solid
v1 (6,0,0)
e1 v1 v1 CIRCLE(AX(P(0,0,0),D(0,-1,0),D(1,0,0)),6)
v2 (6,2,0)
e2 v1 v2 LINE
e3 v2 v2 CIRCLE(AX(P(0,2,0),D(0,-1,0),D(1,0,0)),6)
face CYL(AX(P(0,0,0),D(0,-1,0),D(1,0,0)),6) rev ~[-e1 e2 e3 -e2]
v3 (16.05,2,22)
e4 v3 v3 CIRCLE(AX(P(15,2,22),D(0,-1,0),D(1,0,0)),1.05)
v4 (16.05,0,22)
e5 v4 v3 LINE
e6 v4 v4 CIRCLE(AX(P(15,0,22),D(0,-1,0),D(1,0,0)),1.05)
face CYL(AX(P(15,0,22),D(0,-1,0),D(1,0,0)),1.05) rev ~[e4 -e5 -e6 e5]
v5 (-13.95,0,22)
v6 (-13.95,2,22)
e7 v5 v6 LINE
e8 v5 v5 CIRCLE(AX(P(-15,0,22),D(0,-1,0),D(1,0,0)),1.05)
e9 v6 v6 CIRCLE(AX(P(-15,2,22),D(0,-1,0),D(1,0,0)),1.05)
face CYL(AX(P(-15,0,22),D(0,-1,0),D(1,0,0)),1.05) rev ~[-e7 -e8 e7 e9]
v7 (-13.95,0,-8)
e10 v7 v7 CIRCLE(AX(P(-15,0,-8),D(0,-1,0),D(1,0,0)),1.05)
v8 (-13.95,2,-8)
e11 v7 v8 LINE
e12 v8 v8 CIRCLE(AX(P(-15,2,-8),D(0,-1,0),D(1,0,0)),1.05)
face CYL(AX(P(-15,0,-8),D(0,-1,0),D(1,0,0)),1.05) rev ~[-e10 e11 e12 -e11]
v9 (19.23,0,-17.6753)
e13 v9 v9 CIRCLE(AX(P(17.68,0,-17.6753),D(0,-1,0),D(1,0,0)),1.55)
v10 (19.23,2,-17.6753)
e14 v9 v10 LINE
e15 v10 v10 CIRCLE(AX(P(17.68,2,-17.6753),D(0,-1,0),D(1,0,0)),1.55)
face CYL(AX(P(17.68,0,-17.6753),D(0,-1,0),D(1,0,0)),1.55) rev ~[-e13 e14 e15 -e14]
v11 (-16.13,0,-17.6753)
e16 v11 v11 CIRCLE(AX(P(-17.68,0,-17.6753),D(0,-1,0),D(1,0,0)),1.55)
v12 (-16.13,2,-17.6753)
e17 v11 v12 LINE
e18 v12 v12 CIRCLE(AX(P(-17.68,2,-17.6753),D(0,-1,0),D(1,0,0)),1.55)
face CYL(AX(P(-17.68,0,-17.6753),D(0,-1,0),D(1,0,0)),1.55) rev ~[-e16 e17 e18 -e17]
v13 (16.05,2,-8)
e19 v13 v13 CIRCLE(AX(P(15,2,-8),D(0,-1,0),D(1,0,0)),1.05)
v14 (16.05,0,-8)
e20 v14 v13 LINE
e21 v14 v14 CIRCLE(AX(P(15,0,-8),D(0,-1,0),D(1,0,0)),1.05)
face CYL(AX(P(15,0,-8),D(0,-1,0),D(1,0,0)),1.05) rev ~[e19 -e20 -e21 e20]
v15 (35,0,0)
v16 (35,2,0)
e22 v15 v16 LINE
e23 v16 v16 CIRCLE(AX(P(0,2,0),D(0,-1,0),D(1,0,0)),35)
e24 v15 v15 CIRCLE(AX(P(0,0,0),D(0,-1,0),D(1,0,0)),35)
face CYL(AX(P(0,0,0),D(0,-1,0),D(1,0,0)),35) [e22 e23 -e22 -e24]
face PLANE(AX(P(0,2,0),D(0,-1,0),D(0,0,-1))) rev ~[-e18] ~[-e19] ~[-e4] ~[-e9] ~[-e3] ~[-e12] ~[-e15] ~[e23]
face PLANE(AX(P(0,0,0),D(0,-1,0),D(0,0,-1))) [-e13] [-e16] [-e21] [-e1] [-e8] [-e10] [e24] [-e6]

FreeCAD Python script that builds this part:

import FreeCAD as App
import Part
import Sketcher
from FreeCAD import Vector
Q = App.Units.Quantity

doc = App.newDocument("Part")
params = doc.addObject("Spreadsheet::Sheet", "Params")
for row, (alias, value) in enumerate([
    ("sketch1_diameter", "70 mm"),
    ("sketch1_diameter2", "12 mm"),
    ("pad1_length", "2 mm"),
    ("sketch2_diameter", "2.1 mm"),
    ("pocket1_length", "224.2374 mm"),
    ("sketch3_diameter", "3.1 mm"),
    ("pocket2_length", "156.4567 mm"),
], start=1):
    params.set(f"A{row}", alias)
    params.set(f"B{row}", "=" + value)
    params.setAlias(f"B{row}", alias)

body = doc.addObject("PartDesign::Body", "Body")

# Sketch on XZ plane
sketch1 = body.newObject("Sketcher::SketchObject", "Sketch")
sketch1.AttachmentSupport = (doc.getObject("XZ_Plane"), [""])
sketch1.MapMode = "FlatFace"
sketch1.addGeometry(Part.Circle(Vector(0, 0, 0), Vector(0, 0, 1), 35), False)
sketch1.addGeometry(Part.Circle(Vector(0, 0, 0), Vector(0, 0, 1), 6), False)
sketch1.addConstraint(Sketcher.Constraint("Coincident", 0, 3, -1, 1))
sketch1.addConstraint(Sketcher.Constraint("Coincident", 1, 3, -1, 1))
sketch1.addConstraint(Sketcher.Constraint("Diameter", 0, Q("70 mm")))
sketch1.addConstraint(Sketcher.Constraint("Diameter", 1, Q("12 mm")))
sketch1.setExpression("Constraints[2]", "Params.sketch1_diameter")
sketch1.setExpression("Constraints[3]", "Params.sketch1_diameter2")
pad1 = body.newObject("PartDesign::Pad", "Pad")
pad1.Profile = sketch1
pad1.setExpression("Length", "Params.pad1_length")
pad1.Reversed = True

# Sketch on XZ plane
sketch2 = body.newObject("Sketcher::SketchObject", "Sketch001")
sketch2.AttachmentSupport = (doc.getObject("XZ_Plane"), [""])
sketch2.MapMode = "FlatFace"
sketch2.addGeometry(Part.Circle(Vector(-15, 22, 0), Vector(0, 0, 1), 1.1), False)
sketch2.addGeometry(Part.Circle(Vector(-15, -8, 0), Vector(0, 0, 1), 1.1), False)
sketch2.addGeometry(Part.Circle(Vector(15, 22, 0), Vector(0, 0, 1), 1.1), False)
sketch2.addGeometry(Part.Circle(Vector(15, -8, 0), Vector(0, 0, 1), 1.1), False)
sketch2.addConstraint(Sketcher.Constraint("Equal", 0, 1))
sketch2.addConstraint(Sketcher.Constraint("Equal", 1, 2))
sketch2.addConstraint(Sketcher.Constraint("Equal", 2, 3))
sketch2.addConstraint(Sketcher.Constraint("Symmetric", 0, 3, 2, 3, -2))
sketch2.addConstraint(Sketcher.Constraint("Symmetric", 1, 3, 3, 3, -2))
sketch2.addConstraint(Sketcher.Constraint("Vertical", 0, 3, 1, 3))
sketch2.addConstraint(Sketcher.Constraint("Diameter", 0, Q("2.1 mm")))
sketch2.addConstraint(Sketcher.Constraint("DistanceX", 0, 3, -1, 1, Q("15 mm")))
sketch2.addConstraint(Sketcher.Constraint("DistanceY", -1, 1, 0, 3, Q("22 mm")))
sketch2.addConstraint(Sketcher.Constraint("DistanceY", 1, 3, -1, 1, Q("8 mm")))
sketch2.setExpression("Constraints[6]", "Params.sketch2_diameter")
pocket1 = body.newObject("PartDesign::Pocket", "Pocket")
pocket1.Profile = sketch2
pocket1.setExpression("Length", "Params.pocket1_length")
pocket1.Midplane = True

# Sketch on XZ plane
sketch3 = body.newObject("Sketcher::SketchObject", "Sketch002")
sketch3.AttachmentSupport = (doc.getObject("XZ_Plane"), [""])
sketch3.MapMode = "FlatFace"
sketch3.addGeometry(Part.Circle(Vector(-17.7, -17.7, 0), Vector(0, 0, 1), 1.6), False)
sketch3.addGeometry(Part.Circle(Vector(17.7, -17.7, 0), Vector(0, 0, 1), 1.6), False)
sketch3.addConstraint(Sketcher.Constraint("Equal", 0, 1))
sketch3.addConstraint(Sketcher.Constraint("Symmetric", 0, 3, 1, 3, -2))
sketch3.addConstraint(Sketcher.Constraint("Diameter", 0, Q("3.1 mm")))
sketch3.addConstraint(Sketcher.Constraint("DistanceX", 0, 3, -1, 1, Q("17.68 mm")))
sketch3.addConstraint(Sketcher.Constraint("DistanceY", 0, 3, -1, 1, Q("17.6753 mm")))
sketch3.setExpression("Constraints[2]", "Params.sketch3_diameter")
pocket2 = body.newObject("PartDesign::Pocket", "Pocket001")
pocket2.Profile = sketch3
pocket2.setExpression("Length", "Params.pocket2_length")
pocket2.Midplane = True

doc.recompute()
